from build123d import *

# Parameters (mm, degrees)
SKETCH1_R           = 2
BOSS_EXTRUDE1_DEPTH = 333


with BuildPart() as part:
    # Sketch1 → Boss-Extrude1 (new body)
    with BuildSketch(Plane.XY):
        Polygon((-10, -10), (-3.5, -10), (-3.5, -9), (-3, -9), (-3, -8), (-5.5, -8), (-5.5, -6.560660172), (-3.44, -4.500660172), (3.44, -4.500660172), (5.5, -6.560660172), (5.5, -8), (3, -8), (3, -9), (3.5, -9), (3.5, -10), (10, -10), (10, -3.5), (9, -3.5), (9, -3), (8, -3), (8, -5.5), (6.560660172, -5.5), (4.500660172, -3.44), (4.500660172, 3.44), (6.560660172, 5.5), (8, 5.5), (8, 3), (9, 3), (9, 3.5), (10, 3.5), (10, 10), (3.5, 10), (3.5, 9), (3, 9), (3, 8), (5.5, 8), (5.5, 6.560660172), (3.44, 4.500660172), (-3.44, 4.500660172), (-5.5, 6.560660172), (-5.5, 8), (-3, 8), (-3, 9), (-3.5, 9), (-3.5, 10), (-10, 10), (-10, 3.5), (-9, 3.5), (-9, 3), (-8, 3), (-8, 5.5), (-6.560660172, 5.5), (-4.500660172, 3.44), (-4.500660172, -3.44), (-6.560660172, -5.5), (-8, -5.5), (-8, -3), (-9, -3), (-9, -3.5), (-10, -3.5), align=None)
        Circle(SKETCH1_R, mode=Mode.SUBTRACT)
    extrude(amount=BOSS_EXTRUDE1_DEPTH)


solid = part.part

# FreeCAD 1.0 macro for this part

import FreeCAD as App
import Part
import Sketcher
from FreeCAD import Vector
Q = App.Units.Quantity

doc = App.newDocument("Part")
body = doc.addObject("PartDesign::Body", "Body")

sketch1 = doc.addObject("Sketcher::SketchObject", "Sketch")
body.addObject(sketch1)
sketch1.AttachmentSupport = (doc.XY_Plane, [""])
sketch1.MapMode = "FlatFace"
sketch1.addGeometry([
    Part.LineSegment(Vector(-10, -10, 0), Vector(-3.5, -10, 0)),
    Part.LineSegment(Vector(-3.5, -10, 0), Vector(-3.5, -9, 0)),
    Part.LineSegment(Vector(-3.5, -9, 0), Vector(-3, -9, 0)),
    Part.LineSegment(Vector(-3, -9, 0), Vector(-3, -8, 0)),
    Part.LineSegment(Vector(-3, -8, 0), Vector(-5.5, -8, 0)),
    Part.LineSegment(Vector(-5.5, -8, 0), Vector(-5.5, -6.6, 0)),
    Part.LineSegment(Vector(-5.5, -6.6, 0), Vector(-3.4, -4.5, 0)),
    Part.LineSegment(Vector(-3.4, -4.5, 0), Vector(3.4, -4.5, 0)),
    Part.LineSegment(Vector(3.4, -4.5, 0), Vector(5.5, -6.6, 0)),
    Part.LineSegment(Vector(5.5, -6.6, 0), Vector(5.5, -8, 0)),
    Part.LineSegment(Vector(5.5, -8, 0), Vector(3, -8, 0)),
    Part.LineSegment(Vector(3, -8, 0), Vector(3, -9, 0)),
    Part.LineSegment(Vector(3, -9, 0), Vector(3.5, -9, 0)),
    Part.LineSegment(Vector(3.5, -9, 0), Vector(3.5, -10, 0)),
    Part.LineSegment(Vector(3.5, -10, 0), Vector(10, -10, 0)),
    Part.LineSegment(Vector(10, -10, 0), Vector(10, -3.5, 0)),
    Part.LineSegment(Vector(10, -3.5, 0), Vector(9, -3.5, 0)),
    Part.LineSegment(Vector(9, -3.5, 0), Vector(9, -3, 0)),
    Part.LineSegment(Vector(9, -3, 0), Vector(8, -3, 0)),
    Part.LineSegment(Vector(8, -3, 0), Vector(8, -5.5, 0)),
    Part.LineSegment(Vector(8, -5.5, 0), Vector(6.6, -5.5, 0)),
    Part.LineSegment(Vector(6.6, -5.5, 0), Vector(4.5, -3.4, 0)),
    Part.LineSegment(Vector(4.5, -3.4, 0), Vector(4.5, 3.4, 0)),
    Part.LineSegment(Vector(4.5, 3.4, 0), Vector(6.6, 5.5, 0)),
    Part.LineSegment(Vector(6.6, 5.5, 0), Vector(8, 5.5, 0)),
    Part.LineSegment(Vector(8, 5.5, 0), Vector(8, 3, 0)),
    Part.LineSegment(Vector(8, 3, 0), Vector(9, 3, 0)),
    Part.LineSegment(Vector(9, 3, 0), Vector(9, 3.5, 0)),
    Part.LineSegment(Vector(9, 3.5, 0), Vector(10, 3.5, 0)),
    Part.LineSegment(Vector(10, 3.5, 0), Vector(10, 10, 0)),
    Part.LineSegment(Vector(10, 10, 0), Vector(3.5, 10, 0)),
    Part.LineSegment(Vector(3.5, 10, 0), Vector(3.5, 9, 0)),
    Part.LineSegment(Vector(3.5, 9, 0), Vector(3, 9, 0)),
    Part.LineSegment(Vector(3, 9, 0), Vector(3, 8, 0)),
    Part.LineSegment(Vector(3, 8, 0), Vector(5.5, 8, 0)),
    Part.LineSegment(Vector(5.5, 8, 0), Vector(5.5, 6.6, 0)),
    Part.LineSegment(Vector(5.5, 6.6, 0), Vector(3.4, 4.5, 0)),
    Part.LineSegment(Vector(3.4, 4.5, 0), Vector(-3.4, 4.5, 0)),
    Part.LineSegment(Vector(-3.4, 4.5, 0), Vector(-5.5, 6.6, 0)),
    Part.LineSegment(Vector(-5.5, 6.6, 0), Vector(-5.5, 8, 0)),
    Part.LineSegment(Vector(-5.5, 8, 0), Vector(-3, 8, 0)),
    Part.LineSegment(Vector(-3, 8, 0), Vector(-3, 9, 0)),
    Part.LineSegment(Vector(-3, 9, 0), Vector(-3.5, 9, 0)),
    Part.LineSegment(Vector(-3.5, 9, 0), Vector(-3.5, 10, 0)),
    Part.LineSegment(Vector(-3.5, 10, 0), Vector(-10, 10, 0)),
    Part.LineSegment(Vector(-10, 10, 0), Vector(-10, 3.5, 0)),
    Part.LineSegment(Vector(-10, 3.5, 0), Vector(-9, 3.5, 0)),
    Part.LineSegment(Vector(-9, 3.5, 0), Vector(-9, 3, 0)),
    Part.LineSegment(Vector(-9, 3, 0), Vector(-8, 3, 0)),
    Part.LineSegment(Vector(-8, 3, 0), Vector(-8, 5.5, 0)),
    Part.LineSegment(Vector(-8, 5.5, 0), Vector(-6.6, 5.5, 0)),
    Part.LineSegment(Vector(-6.6, 5.5, 0), Vector(-4.5, 3.4, 0)),
    Part.LineSegment(Vector(-4.5, 3.4, 0), Vector(-4.5, -3.4, 0)),
    Part.LineSegment(Vector(-4.5, -3.4, 0), Vector(-6.6, -5.5, 0)),
    Part.LineSegment(Vector(-6.6, -5.5, 0), Vector(-8, -5.5, 0)),
    Part.LineSegment(Vector(-8, -5.5, 0), Vector(-8, -3, 0)),
    Part.LineSegment(Vector(-8, -3, 0), Vector(-9, -3, 0)),
    Part.LineSegment(Vector(-9, -3, 0), Vector(-9, -3.5, 0)),
    Part.LineSegment(Vector(-9, -3.5, 0), Vector(-10, -3.5, 0)),
    Part.LineSegment(Vector(-10, -3.5, 0), Vector(-10, -10, 0)),
    Part.Circle(Vector(0, 0, 0), Vector(0, 0, 1), 2),
], False)
sketch1.addConstraint([
    Sketcher.Constraint("Coincident", 0, 2, 1, 1),
    Sketcher.Constraint("Coincident", 1, 2, 2, 1),
    Sketcher.Constraint("Coincident", 2, 2, 3, 1),
    Sketcher.Constraint("Coincident", 3, 2, 4, 1),
    Sketcher.Constraint("Coincident", 4, 2, 5, 1),
    Sketcher.Constraint("Coincident", 5, 2, 6, 1),
    Sketcher.Constraint("Coincident", 6, 2, 7, 1),
    Sketcher.Constraint("Coincident", 7, 2, 8, 1),
    Sketcher.Constraint("Coincident", 8, 2, 9, 1),
    Sketcher.Constraint("Coincident", 9, 2, 10, 1),
    Sketcher.Constraint("Coincident", 10, 2, 11, 1),
    Sketcher.Constraint("Coincident", 11, 2, 12, 1),
    Sketcher.Constraint("Coincident", 12, 2, 13, 1),
    Sketcher.Constraint("Coincident", 13, 2, 14, 1),
    Sketcher.Constraint("Coincident", 14, 2, 15, 1),
    Sketcher.Constraint("Coincident", 15, 2, 16, 1),
    Sketcher.Constraint("Coincident", 16, 2, 17, 1),
    Sketcher.Constraint("Coincident", 17, 2, 18, 1),
    Sketcher.Constraint("Coincident", 18, 2, 19, 1),
    Sketcher.Constraint("Coincident", 19, 2, 20, 1),
    Sketcher.Constraint("Coincident", 20, 2, 21, 1),
    Sketcher.Constraint("Coincident", 21, 2, 22, 1),
    Sketcher.Constraint("Coincident", 22, 2, 23, 1),
    Sketcher.Constraint("Coincident", 23, 2, 24, 1),
    Sketcher.Constraint("Coincident", 24, 2, 25, 1),
    Sketcher.Constraint("Coincident", 25, 2, 26, 1),
    Sketcher.Constraint("Coincident", 26, 2, 27, 1),
    Sketcher.Constraint("Coincident", 27, 2, 28, 1),
    Sketcher.Constraint("Coincident", 28, 2, 29, 1),
    Sketcher.Constraint("Coincident", 29, 2, 30, 1),
    Sketcher.Constraint("Coincident", 30, 2, 31, 1),
    Sketcher.Constraint("Coincident", 31, 2, 32, 1),
    Sketcher.Constraint("Coincident", 32, 2, 33, 1),
    Sketcher.Constraint("Coincident", 33, 2, 34, 1),
    Sketcher.Constraint("Coincident", 34, 2, 35, 1),
    Sketcher.Constraint("Coincident", 35, 2, 36, 1),
    Sketcher.Constraint("Coincident", 36, 2, 37, 1),
    Sketcher.Constraint("Coincident", 37, 2, 38, 1),
    Sketcher.Constraint("Coincident", 38, 2, 39, 1),
    Sketcher.Constraint("Coincident", 39, 2, 40, 1),
    Sketcher.Constraint("Coincident", 40, 2, 41, 1),
    Sketcher.Constraint("Coincident", 41, 2, 42, 1),
    Sketcher.Constraint("Coincident", 42, 2, 43, 1),
    Sketcher.Constraint("Coincident", 43, 2, 44, 1),
    Sketcher.Constraint("Coincident", 44, 2, 45, 1),
    Sketcher.Constraint("Coincident", 45, 2, 46, 1),
    Sketcher.Constraint("Coincident", 46, 2, 47, 1),
    Sketcher.Constraint("Coincident", 47, 2, 48, 1),
    Sketcher.Constraint("Coincident", 48, 2, 49, 1),
    Sketcher.Constraint("Coincident", 49, 2, 50, 1),
    Sketcher.Constraint("Coincident", 50, 2, 51, 1),
    Sketcher.Constraint("Coincident", 51, 2, 52, 1),
    Sketcher.Constraint("Coincident", 52, 2, 53, 1),
    Sketcher.Constraint("Coincident", 53, 2, 54, 1),
    Sketcher.Constraint("Coincident", 54, 2, 55, 1),
    Sketcher.Constraint("Coincident", 55, 2, 56, 1),
    Sketcher.Constraint("Coincident", 56, 2, 57, 1),
    Sketcher.Constraint("Coincident", 57, 2, 58, 1),
    Sketcher.Constraint("Coincident", 58, 2, 59, 1),
    Sketcher.Constraint("Coincident", 59, 2, 0, 1),
    Sketcher.Constraint("Horizontal", 0),
    Sketcher.Constraint("Vertical", 1),
    Sketcher.Constraint("Horizontal", 2),
    Sketcher.Constraint("Vertical", 3),
    Sketcher.Constraint("Horizontal", 4),
    Sketcher.Constraint("Vertical", 5),
    Sketcher.Constraint("Horizontal", 7),
    Sketcher.Constraint("Vertical", 9),
    Sketcher.Constraint("Horizontal", 10),
    Sketcher.Constraint("Vertical", 11),
    Sketcher.Constraint("Horizontal", 12),
    Sketcher.Constraint("Vertical", 13),
    Sketcher.Constraint("Horizontal", 14),
    Sketcher.Constraint("Vertical", 15),
    Sketcher.Constraint("Horizontal", 16),
    Sketcher.Constraint("Vertical", 17),
    Sketcher.Constraint("Horizontal", 18),
    Sketcher.Constraint("Vertical", 19),
    Sketcher.Constraint("Horizontal", 20),
    Sketcher.Constraint("Vertical", 22),
    Sketcher.Constraint("Horizontal", 24),
    Sketcher.Constraint("Vertical", 25),
    Sketcher.Constraint("Horizontal", 26),
    Sketcher.Constraint("Vertical", 27),
    Sketcher.Constraint("Horizontal", 28),
    Sketcher.Constraint("Vertical", 29),
    Sketcher.Constraint("Horizontal", 30),
    Sketcher.Constraint("Vertical", 31),
    Sketcher.Constraint("Horizontal", 32),
    Sketcher.Constraint("Vertical", 33),
    Sketcher.Constraint("Horizontal", 34),
    Sketcher.Constraint("Vertical", 35),
    Sketcher.Constraint("Horizontal", 37),
    Sketcher.Constraint("Vertical", 39),
    Sketcher.Constraint("Horizontal", 40),
    Sketcher.Constraint("Vertical", 41),
    Sketcher.Constraint("Horizontal", 42),
    Sketcher.Constraint("Vertical", 43),
    Sketcher.Constraint("Horizontal", 44),
    Sketcher.Constraint("Vertical", 45),
    Sketcher.Constraint("Horizontal", 46),
    Sketcher.Constraint("Vertical", 47),
    Sketcher.Constraint("Horizontal", 48),
    Sketcher.Constraint("Vertical", 49),
    Sketcher.Constraint("Horizontal", 50),
    Sketcher.Constraint("Vertical", 52),
    Sketcher.Constraint("Horizontal", 54),
    Sketcher.Constraint("Vertical", 55),
    Sketcher.Constraint("Horizontal", 56),
    Sketcher.Constraint("Vertical", 57),
    Sketcher.Constraint("Horizontal", 58),
    Sketcher.Constraint("Vertical", 59),
    Sketcher.Constraint("Coincident", 60, 3, -1, 1),
    Sketcher.Constraint("Symmetric", 0, 2, 30, 2, -1, 1),
    Sketcher.Constraint("Symmetric", 2, 2, 32, 2, -1, 1),
    Sketcher.Constraint("Symmetric", 4, 2, 34, 2, -1, 1),
    Sketcher.Constraint("Symmetric", 6, 2, 36, 2, -1, 1),
    Sketcher.Constraint("Symmetric", 8, 2, 38, 2, -1, 1),
    Sketcher.Constraint("Symmetric", 10, 2, 40, 2, -1, 1),
    Sketcher.Constraint("Symmetric", 12, 2, 42, 2, -1, 1),
    Sketcher.Constraint("Symmetric", 14, 2, 44, 2, -1, 1),
    Sketcher.Constraint("Symmetric", 16, 2, 46, 2, -1, 1),
    Sketcher.Constraint("Symmetric", 18, 2, 48, 2, -1, 1),
    Sketcher.Constraint("Symmetric", 20, 2, 50, 2, -1, 1),
    Sketcher.Constraint("Symmetric", 21, 2, 51, 2, -1, 1),
    Sketcher.Constraint("Symmetric", 23, 2, 53, 2, -1, 1),
    Sketcher.Constraint("Symmetric", 25, 2, 55, 2, -1, 1),
    Sketcher.Constraint("Symmetric", 27, 2, 57, 2, -1, 1),
    Sketcher.Constraint("Symmetric", 5, 2, 8, 2, -2),
    Sketcher.Constraint("Symmetric", 3, 2, 10, 2, -2),
    Sketcher.Constraint("Symmetric", 1, 2, 12, 2, -2),
    Sketcher.Constraint("Symmetric", 29, 2, 44, 2, -2),
    Sketcher.Constraint("Symmetric", 27, 2, 46, 2, -2),
    Sketcher.Constraint("Symmetric", 25, 2, 48, 2, -2),
    Sketcher.Constraint("Symmetric", 23, 2, 50, 2, -2),
    Sketcher.Constraint("Perpendicular", 6, 8),
    Sketcher.Constraint("Parallel", 8, 21),
    Sketcher.Constraint("Perpendicular", 21, 23),
    Sketcher.Constraint("Parallel", 23, 36),
    Sketcher.Constraint("Perpendicular", 36, 38),
    Sketcher.Constraint("Perpendicular", 51, 53),
    Sketcher.Constraint("Horizontal", 22, 2, 51, 2),
    Sketcher.Constraint("Vertical", 45, 2, 58, 2),
    Sketcher.Constraint("Equal", 16, 18),
    Sketcher.Constraint("Equal", 58, 1),
    Sketcher.Constraint("Equal", 1, 3),
    Sketcher.Constraint("Equal", 54, 5),
    Sketcher.Constraint("Equal", 44, 15),
    Sketcher.Constraint("Equal", 42, 17),
    Sketcher.Constraint("Equal", 40, 19),
    Sketcher.Constraint("Equal", 37, 22),
    Sketcher.Constraint("Equal", 8, 21),
    Sketcher.Constraint("Diameter", 60, Q("4 mm")),
    Sketcher.Constraint("DistanceX", 16, 2, 16, 1, Q("1 mm")),
    Sketcher.Constraint("DistanceX", 0, 1, 0, 2, Q("6.5 mm")),
    Sketcher.Constraint("DistanceX", 2, 1, 2, 2, Q("0.5 mm")),
    Sketcher.Constraint("DistanceX", 4, 2, 4, 1, Q("2.5 mm")),
    Sketcher.Constraint("DistanceY", 0, 2, -1, 1, Q("10 mm")),
    Sketcher.Constraint("DistanceX", 7, 1, 7, 2, Q("6.88 mm")),
    Sketcher.Constraint("DistanceX", 20, 2, 20, 1, Q("1.43934 mm")),
])
pad1 = doc.addObject("PartDesign::Pad", "Pad")
body.addObject(pad1)
pad1.Profile = sketch1
pad1.Length = 333

doc.recompute()
